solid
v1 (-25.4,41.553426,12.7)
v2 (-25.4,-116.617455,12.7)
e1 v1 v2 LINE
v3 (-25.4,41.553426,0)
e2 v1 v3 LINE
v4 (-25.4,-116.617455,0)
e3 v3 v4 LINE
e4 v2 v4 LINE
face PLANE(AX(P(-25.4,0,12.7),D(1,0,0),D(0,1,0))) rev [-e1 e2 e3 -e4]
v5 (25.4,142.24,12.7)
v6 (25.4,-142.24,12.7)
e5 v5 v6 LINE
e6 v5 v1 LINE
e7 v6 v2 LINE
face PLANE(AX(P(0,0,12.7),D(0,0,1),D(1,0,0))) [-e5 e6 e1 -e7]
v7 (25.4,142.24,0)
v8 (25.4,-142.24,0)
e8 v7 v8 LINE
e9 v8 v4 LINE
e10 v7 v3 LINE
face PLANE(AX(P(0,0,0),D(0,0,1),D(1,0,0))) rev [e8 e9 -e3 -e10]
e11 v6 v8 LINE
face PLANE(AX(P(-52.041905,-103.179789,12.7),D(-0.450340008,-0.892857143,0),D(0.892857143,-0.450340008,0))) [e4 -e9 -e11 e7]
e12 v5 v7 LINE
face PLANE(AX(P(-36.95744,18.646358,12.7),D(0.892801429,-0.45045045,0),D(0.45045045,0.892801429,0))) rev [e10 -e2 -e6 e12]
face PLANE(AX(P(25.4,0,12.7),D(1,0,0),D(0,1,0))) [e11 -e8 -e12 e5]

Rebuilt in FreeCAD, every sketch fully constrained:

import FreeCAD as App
import Part
import Sketcher

V = App.Vector
Q = App.Units.Quantity


def add_polygon(sketch, points):
    """Adds a closed chain of lines whose ends are joined by coincident constraints."""
    first, n = sketch.GeometryCount, len(points)
    for a, b in zip(points, points[1:] + points[:1]):
        sketch.addGeometry(Part.LineSegment(App.Vector(*a, 0), App.Vector(*b, 0)), False)
    for i in range(n):
        sketch.addConstraint(Sketcher.Constraint("Coincident", first + i, 2, first + (i + 1) % n, 1))

doc = App.newDocument("Part")
params = doc.addObject("Spreadsheet::Sheet", "Params")
for row, (alias, value) in enumerate([
    ("sketch1_height", "11.2 in"),
    ("sketch1_length", "4.44 in"),
    ("sketch1_length2", "2.24 in"),
    ("pad1_length", "0.5 in"),
], start=1):
    params.set(f"A{row}", alias)
    params.set(f"B{row}", "=" + value)
    params.setAlias(f"B{row}", alias)

body = doc.addObject("PartDesign::Body", "Body")

sketch1 = body.newObject("Sketcher::SketchObject", "Sketch")
sketch1.AttachmentSupport = (doc.getObject("XY_Plane"), [""])
sketch1.MapMode = "FlatFace"
add_polygon(sketch1, [(25, -142), (25, 142), (-25, 42), (-25, -117)])
sketch1.addConstraint([
    Sketcher.Constraint("Vertical", 0),
    Sketcher.Constraint("Vertical", 2),
    Sketcher.Constraint("DistanceY", 0, 1, 0, 2, Q("11.2 in")),
    Sketcher.Constraint("DistanceX", -1, 1, 0, 2, Q("1 in")),
    Sketcher.Constraint("DistanceX", 1, 2, -1, 1, Q("1 in")),
    Sketcher.Constraint("DistanceY", -1, 1, 0, 2, Q("5.6 in")),
    Sketcher.Constraint("Distance", 1, Q("4.44 in")),
    Sketcher.Constraint("Distance", 3, Q("2.24 in")),
])
sketch1.setExpression("Constraints[6]", "Params.sketch1_height")
sketch1.setExpression("Constraints[10]", "Params.sketch1_length")
sketch1.setExpression("Constraints[11]", "Params.sketch1_length2")
pad1 = body.newObject("PartDesign::Pad", "Pad")
pad1.Profile = sketch1
pad1.setExpression("Length", "Params.pad1_length")

doc.recompute()
